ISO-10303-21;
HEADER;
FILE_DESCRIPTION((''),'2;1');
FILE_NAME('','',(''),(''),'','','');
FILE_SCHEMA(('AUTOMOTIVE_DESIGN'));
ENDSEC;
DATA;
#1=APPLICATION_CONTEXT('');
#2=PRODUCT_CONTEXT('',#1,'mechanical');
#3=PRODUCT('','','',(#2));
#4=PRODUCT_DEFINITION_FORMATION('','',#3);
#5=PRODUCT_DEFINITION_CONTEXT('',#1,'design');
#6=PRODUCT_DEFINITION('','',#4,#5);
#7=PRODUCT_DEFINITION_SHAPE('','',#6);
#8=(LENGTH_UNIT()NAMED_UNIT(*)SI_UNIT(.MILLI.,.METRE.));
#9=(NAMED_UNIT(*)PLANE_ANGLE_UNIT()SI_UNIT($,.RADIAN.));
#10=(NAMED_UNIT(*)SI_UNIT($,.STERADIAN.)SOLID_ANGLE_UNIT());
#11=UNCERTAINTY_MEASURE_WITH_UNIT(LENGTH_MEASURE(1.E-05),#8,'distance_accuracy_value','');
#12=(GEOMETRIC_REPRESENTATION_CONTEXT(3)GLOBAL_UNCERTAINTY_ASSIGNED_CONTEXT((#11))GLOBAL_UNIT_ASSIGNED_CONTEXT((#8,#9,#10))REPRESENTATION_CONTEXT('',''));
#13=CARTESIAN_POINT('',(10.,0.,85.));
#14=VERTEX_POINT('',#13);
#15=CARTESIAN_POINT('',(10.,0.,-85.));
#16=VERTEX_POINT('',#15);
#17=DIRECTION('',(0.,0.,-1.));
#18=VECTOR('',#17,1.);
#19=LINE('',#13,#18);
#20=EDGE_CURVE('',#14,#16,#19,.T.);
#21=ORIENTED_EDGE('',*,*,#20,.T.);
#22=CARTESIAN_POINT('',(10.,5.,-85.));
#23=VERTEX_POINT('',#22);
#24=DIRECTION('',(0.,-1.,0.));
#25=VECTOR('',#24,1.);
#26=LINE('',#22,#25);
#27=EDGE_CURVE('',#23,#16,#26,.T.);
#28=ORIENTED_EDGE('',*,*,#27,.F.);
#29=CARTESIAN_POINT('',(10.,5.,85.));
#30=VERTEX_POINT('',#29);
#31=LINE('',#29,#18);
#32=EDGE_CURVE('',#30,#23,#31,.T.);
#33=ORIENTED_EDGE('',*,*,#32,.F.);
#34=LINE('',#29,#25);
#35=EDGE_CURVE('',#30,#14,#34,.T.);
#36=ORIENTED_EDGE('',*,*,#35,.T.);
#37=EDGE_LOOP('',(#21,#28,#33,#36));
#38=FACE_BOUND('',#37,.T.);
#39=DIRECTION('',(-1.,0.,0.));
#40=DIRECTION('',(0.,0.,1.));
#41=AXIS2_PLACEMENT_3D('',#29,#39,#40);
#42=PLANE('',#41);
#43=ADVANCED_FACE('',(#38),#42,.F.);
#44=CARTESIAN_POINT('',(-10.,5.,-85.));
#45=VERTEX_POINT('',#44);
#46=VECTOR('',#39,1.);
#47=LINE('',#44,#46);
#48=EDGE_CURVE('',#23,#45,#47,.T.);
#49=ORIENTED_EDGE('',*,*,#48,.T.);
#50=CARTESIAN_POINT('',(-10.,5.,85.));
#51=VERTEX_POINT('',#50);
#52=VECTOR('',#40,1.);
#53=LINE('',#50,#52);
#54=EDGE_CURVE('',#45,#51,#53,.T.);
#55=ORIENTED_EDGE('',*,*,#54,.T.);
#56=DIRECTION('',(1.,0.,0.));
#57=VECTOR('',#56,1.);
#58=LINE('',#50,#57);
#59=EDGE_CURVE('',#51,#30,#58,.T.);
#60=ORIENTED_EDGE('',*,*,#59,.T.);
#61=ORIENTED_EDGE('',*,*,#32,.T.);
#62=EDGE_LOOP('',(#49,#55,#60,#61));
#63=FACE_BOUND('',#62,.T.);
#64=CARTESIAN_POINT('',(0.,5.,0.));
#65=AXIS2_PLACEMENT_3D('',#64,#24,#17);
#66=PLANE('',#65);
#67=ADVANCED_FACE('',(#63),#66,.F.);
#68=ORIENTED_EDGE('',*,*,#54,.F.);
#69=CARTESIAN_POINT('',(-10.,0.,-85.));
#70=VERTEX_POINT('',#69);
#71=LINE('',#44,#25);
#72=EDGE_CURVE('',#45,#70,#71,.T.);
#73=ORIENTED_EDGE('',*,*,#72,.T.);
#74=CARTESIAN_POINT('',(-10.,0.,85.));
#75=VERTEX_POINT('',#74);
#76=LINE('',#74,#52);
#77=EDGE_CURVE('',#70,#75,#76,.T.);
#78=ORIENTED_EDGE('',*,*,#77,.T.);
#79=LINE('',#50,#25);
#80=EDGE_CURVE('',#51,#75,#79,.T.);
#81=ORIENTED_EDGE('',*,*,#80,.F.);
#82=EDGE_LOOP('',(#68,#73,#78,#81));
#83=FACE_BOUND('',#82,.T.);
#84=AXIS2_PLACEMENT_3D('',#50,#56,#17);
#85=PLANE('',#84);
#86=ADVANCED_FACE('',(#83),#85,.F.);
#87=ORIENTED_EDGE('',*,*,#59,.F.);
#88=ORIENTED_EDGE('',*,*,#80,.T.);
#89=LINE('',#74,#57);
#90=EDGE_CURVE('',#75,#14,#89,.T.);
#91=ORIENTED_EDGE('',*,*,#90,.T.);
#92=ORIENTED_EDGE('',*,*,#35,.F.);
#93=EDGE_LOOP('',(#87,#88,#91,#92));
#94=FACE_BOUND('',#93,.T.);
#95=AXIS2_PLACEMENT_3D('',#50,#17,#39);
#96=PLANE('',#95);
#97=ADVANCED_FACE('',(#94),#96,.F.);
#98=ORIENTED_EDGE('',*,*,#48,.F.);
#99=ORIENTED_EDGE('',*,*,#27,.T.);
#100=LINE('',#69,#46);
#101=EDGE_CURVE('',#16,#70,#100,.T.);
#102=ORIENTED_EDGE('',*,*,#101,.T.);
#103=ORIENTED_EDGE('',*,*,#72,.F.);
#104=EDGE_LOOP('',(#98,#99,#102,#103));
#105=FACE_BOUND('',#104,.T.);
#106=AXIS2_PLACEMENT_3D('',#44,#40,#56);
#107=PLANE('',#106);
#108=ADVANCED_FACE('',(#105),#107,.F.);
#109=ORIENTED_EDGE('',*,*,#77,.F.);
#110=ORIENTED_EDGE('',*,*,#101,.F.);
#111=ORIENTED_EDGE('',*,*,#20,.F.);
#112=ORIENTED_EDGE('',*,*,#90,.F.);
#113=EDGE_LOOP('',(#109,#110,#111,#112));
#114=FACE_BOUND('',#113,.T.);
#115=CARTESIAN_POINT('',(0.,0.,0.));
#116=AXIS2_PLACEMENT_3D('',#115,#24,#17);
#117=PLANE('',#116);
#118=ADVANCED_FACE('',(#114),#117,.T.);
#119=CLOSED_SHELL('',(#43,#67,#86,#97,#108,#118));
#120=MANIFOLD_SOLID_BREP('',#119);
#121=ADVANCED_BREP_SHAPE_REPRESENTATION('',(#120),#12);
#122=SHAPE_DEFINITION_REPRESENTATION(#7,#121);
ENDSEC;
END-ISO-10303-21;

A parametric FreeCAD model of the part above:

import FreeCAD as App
import Part
import Sketcher
from FreeCAD import Vector
Q = App.Units.Quantity


def add_polygon(sketch, points):
    """Adds a closed chain of lines whose ends are joined by coincident constraints."""
    first, n = sketch.GeometryCount, len(points)
    for a, b in zip(points, points[1:] + points[:1]):
        sketch.addGeometry(Part.LineSegment(App.Vector(*a, 0), App.Vector(*b, 0)), False)
    for i in range(n):
        sketch.addConstraint(Sketcher.Constraint("Coincident", first + i, 2, first + (i + 1) % n, 1))

doc = App.newDocument("Part")
body = doc.addObject("PartDesign::Body", "Body")

# Sketch on XZ plane
sketch1 = doc.addObject("Sketcher::SketchObject", "Sketch")
body.addObject(sketch1)
sketch1.AttachmentSupport = (doc.XZ_Plane, [""])
sketch1.MapMode = "FlatFace"
add_polygon(sketch1, [(-10, -85), (-10, 85), (10, 85), (10, -85)])  # lines 0-3
sketch1.addConstraint(Sketcher.Constraint("Vertical", 0))
sketch1.addConstraint(Sketcher.Constraint("Horizontal", 1))
sketch1.addConstraint(Sketcher.Constraint("Vertical", 2))
sketch1.addConstraint(Sketcher.Constraint("Horizontal", 3))
sketch1.addConstraint(Sketcher.Constraint("Symmetric", 0, 2, 2, 2, -1, 1))
sketch1.addConstraint(Sketcher.Constraint("DistanceX", 1, 1, 1, 2, Q("20 mm")))
sketch1.addConstraint(Sketcher.Constraint("DistanceY", 0, 1, 0, 2, Q("170 mm")))
pad1 = doc.addObject("PartDesign::Pad", "Pad")
body.addObject(pad1)
pad1.Profile = sketch1
pad1.Length = 5
pad1.Reversed = True

doc.recompute()
